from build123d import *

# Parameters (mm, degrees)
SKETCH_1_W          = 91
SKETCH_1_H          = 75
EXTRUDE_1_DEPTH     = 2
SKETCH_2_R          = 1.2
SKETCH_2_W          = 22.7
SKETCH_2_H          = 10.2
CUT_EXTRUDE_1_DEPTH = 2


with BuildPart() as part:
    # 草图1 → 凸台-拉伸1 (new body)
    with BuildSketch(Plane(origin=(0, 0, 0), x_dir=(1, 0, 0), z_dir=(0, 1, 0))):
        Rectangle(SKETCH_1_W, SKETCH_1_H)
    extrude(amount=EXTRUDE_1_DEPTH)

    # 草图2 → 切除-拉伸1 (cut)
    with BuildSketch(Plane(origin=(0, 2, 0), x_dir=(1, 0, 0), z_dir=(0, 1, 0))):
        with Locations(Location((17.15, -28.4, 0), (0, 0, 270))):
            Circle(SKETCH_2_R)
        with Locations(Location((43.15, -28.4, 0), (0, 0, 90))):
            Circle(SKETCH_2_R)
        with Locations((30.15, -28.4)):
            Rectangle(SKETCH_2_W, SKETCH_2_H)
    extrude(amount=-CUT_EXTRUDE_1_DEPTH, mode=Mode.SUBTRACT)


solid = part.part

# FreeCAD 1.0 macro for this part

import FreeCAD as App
import Part
import Sketcher
from FreeCAD import Vector
Q = App.Units.Quantity

doc = App.newDocument("Part")
body = doc.addObject("PartDesign::Body", "Body")

sketch1 = body.newObject("Sketcher::SketchObject", "Sketch")
sketch1.AttachmentSupport = (doc.getObject("XZ_Plane"), [""])
sketch1.MapMode = "FlatFace"
sketch1.addGeometry([
    Part.LineSegment(Vector(-46, -38, 0), Vector(-46, 38, 0)),
    Part.LineSegment(Vector(-46, 38, 0), Vector(46, 38, 0)),
    Part.LineSegment(Vector(46, 38, 0), Vector(46, -38, 0)),
    Part.LineSegment(Vector(46, -38, 0), Vector(-46, -38, 0)),
], False)
sketch1.addConstraint([
    Sketcher.Constraint("Coincident", 0, 2, 1, 1),
    Sketcher.Constraint("Coincident", 1, 2, 2, 1),
    Sketcher.Constraint("Coincident", 2, 2, 3, 1),
    Sketcher.Constraint("Coincident", 3, 2, 0, 1),
    Sketcher.Constraint("Vertical", 0),
    Sketcher.Constraint("Horizontal", 1),
    Sketcher.Constraint("Vertical", 2),
    Sketcher.Constraint("Horizontal", 3),
    Sketcher.Constraint("Symmetric", 0, 2, 2, 2, -1, 1),
    Sketcher.Constraint("DistanceX", 1, 1, 1, 2, Q("91 mm")),
    Sketcher.Constraint("DistanceY", 0, 1, 0, 2, Q("75 mm")),
])
pad1 = body.newObject("PartDesign::Pad", "Pad")
pad1.Profile = sketch1
pad1.Length = 2
pad1.Reversed = True

sketch2 = body.newObject("Sketcher::SketchObject", "Sketch001")
sketch2.AttachmentSupport = (doc.getObject("XZ_Plane"), [""])
sketch2.MapMode = "FlatFace"
sketch2.AttachmentOffset = App.Placement(Vector(0, 0, -2), App.Rotation())
sketch2.addGeometry([
    Part.Circle(Vector(17.1, 28.4, 0), Vector(0, 0, 1), 1.2),
    Part.Circle(Vector(43.1, 28.4, 0), Vector(0, 0, 1), 1.2),
    Part.LineSegment(Vector(18.8, 23.3, 0), Vector(18.8, 33.5, 0)),
    Part.LineSegment(Vector(18.8, 33.5, 0), Vector(41.5, 33.5, 0)),
    Part.LineSegment(Vector(41.5, 33.5, 0), Vector(41.5, 23.3, 0)),
    Part.LineSegment(Vector(41.5, 23.3, 0), Vector(18.8, 23.3, 0)),
], False)
sketch2.addConstraint([
    Sketcher.Constraint("Coincident", 2, 2, 3, 1),
    Sketcher.Constraint("Coincident", 3, 2, 4, 1),
    Sketcher.Constraint("Coincident", 4, 2, 5, 1),
    Sketcher.Constraint("Coincident", 5, 2, 2, 1),
    Sketcher.Constraint("Vertical", 2),
    Sketcher.Constraint("Horizontal", 3),
    Sketcher.Constraint("Vertical", 4),
    Sketcher.Constraint("Horizontal", 5),
    Sketcher.Constraint("Equal", 0, 1),
    Sketcher.Constraint("Horizontal", 0, 3, 1, 3),
    Sketcher.Constraint("Diameter", 0, Q("2.4 mm")),
    Sketcher.Constraint("DistanceX", 3, 1, 3, 2, Q("22.7 mm")),
    Sketcher.Constraint("DistanceY", 2, 1, 2, 2, Q("10.2 mm")),
    Sketcher.Constraint("DistanceX", 0, 3, 1, 3, Q("26 mm")),
    Sketcher.Constraint("DistanceY", -1, 1, 0, 3, Q("28.4 mm")),
    Sketcher.Constraint("DistanceX", -1, 1, 2, 2, Q("18.8 mm")),
    Sketcher.Constraint("DistanceY", -1, 1, 2, 2, Q("33.5 mm")),
    Sketcher.Constraint("DistanceX", -1, 1, 0, 3, Q("17.15 mm")),
])
pocket1 = body.newObject("PartDesign::Pocket", "Pocket")
pocket1.Profile = sketch2
pocket1.Length = 2
pocket1.Reversed = True

doc.recompute()
